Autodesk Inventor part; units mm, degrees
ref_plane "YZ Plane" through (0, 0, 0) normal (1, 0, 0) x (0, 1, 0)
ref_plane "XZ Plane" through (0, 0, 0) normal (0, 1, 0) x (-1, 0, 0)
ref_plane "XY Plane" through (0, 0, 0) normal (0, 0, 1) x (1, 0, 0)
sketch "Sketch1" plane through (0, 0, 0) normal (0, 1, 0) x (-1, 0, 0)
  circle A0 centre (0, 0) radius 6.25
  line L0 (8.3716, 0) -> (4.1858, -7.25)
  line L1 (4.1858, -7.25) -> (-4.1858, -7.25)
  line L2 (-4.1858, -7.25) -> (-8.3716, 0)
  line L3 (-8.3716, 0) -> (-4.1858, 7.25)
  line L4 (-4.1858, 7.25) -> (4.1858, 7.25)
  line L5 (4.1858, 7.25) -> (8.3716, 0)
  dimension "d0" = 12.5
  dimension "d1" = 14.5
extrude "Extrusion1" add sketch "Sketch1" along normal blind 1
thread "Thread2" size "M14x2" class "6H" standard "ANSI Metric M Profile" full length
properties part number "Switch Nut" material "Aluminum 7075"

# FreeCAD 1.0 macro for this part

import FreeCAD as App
import Part
import Sketcher
Q = App.Units.Quantity


def add_polygon(sketch, points):
    """Adds a closed chain of lines whose ends are joined by coincident constraints."""
    first, n = sketch.GeometryCount, len(points)
    for a, b in zip(points, points[1:] + points[:1]):
        sketch.addGeometry(Part.LineSegment(App.Vector(*a, 0), App.Vector(*b, 0)), False)
    for i in range(n):
        sketch.addConstraint(Sketcher.Constraint("Coincident", first + i, 2, first + (i + 1) % n, 1))

doc = App.newDocument("Part")
params = doc.addObject("Spreadsheet::Sheet", "Params")
for row, (alias, value) in enumerate([
    ("sketch1_diameter", "12.5 mm"),
    ("pad1_length", "1 mm"),
], start=1):
    params.set(f"A{row}", alias)
    params.set(f"B{row}", "=" + value)
    params.setAlias(f"B{row}", alias)

body = doc.addObject("PartDesign::Body", "Body")

# Sketch on XZ plane
sketch1 = body.newObject("Sketcher::SketchObject", "Sketch")
sketch1.AttachmentSupport = (doc.getObject("XZ_Plane"), [""])
sketch1.MapMode = "FlatFace"
add_polygon(sketch1, [(-4, -7), (-8, 0), (-4, 7), (4, 7), (8, 0), (4, -7)])  # lines 0-5
sketch1.addGeometry(Part.Circle(App.Vector(0, 0, 0), App.Vector(0, 0, 1), 6), False)  # 6
sketch1.addConstraint(Sketcher.Constraint("Horizontal", 2))
sketch1.addConstraint(Sketcher.Constraint("Horizontal", 5))
sketch1.addConstraint(Sketcher.Constraint("Coincident", 6, 3, -1, 1))
sketch1.addConstraint(Sketcher.Constraint("Symmetric", 0, 2, 3, 2, -1, 1))
sketch1.addConstraint(Sketcher.Constraint("Symmetric", 1, 2, 4, 2, -1, 1))
sketch1.addConstraint(Sketcher.Constraint("PointOnObject", 0, 2, -1))
sketch1.addConstraint(Sketcher.Constraint("Parallel", 0, 3))
sketch1.addConstraint(Sketcher.Constraint("Vertical", 2, 2, 4, 2))
sketch1.addConstraint(Sketcher.Constraint("Diameter", 6, Q("12.5 mm")))
sketch1.addConstraint(Sketcher.Constraint("DistanceY", 4, 2, 2, 2, Q("14.5 mm")))
sketch1.addConstraint(Sketcher.Constraint("Angle", 0, Q("120 deg")))
sketch1.addConstraint(Sketcher.Constraint("DistanceX", 2, 1, 2, 2, Q("8.3716 mm")))
sketch1.setExpression("Constraints[14]", "Params.sketch1_diameter")
pad1 = body.newObject("PartDesign::Pad", "Pad")
pad1.Profile = sketch1
pad1.setExpression("Length", "Params.pad1_length")
pad1.Reversed = True

doc.recompute()
